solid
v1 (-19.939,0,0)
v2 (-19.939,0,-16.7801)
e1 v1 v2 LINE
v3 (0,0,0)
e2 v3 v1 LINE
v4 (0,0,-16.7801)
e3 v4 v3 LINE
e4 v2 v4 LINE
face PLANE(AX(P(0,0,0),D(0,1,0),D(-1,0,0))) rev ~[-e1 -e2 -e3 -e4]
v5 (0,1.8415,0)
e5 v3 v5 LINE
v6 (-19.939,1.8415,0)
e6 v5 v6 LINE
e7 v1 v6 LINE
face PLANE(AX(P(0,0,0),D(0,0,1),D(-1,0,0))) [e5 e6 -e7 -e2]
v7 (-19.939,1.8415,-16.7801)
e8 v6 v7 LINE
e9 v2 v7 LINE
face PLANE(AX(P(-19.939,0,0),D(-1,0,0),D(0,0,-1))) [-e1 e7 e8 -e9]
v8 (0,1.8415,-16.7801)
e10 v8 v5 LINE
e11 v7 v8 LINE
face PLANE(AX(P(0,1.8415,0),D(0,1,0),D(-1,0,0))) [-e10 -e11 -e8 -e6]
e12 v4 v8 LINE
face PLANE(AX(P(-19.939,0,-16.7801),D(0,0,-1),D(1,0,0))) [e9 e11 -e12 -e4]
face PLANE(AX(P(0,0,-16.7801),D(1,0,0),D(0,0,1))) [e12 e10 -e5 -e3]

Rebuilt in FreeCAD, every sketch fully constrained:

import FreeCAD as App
import Part
import Sketcher

V = App.Vector
Q = App.Units.Quantity

doc = App.newDocument("Part")
params = doc.addObject("Spreadsheet::Sheet", "Params")
for row, (alias, value) in enumerate([
    ("sketch1_width", "0.785 in"),
    ("pad1_length", "0.0725 in"),
], start=1):
    params.set(f"A{row}", alias)
    params.set(f"B{row}", "=" + value)
    params.setAlias(f"B{row}", alias)

body = doc.addObject("PartDesign::Body", "Body")

sketch1 = body.newObject("Sketcher::SketchObject", "Sketch")
sketch1.AttachmentSupport = (doc.getObject("XZ_Plane"), [""])
sketch1.MapMode = "FlatFace"
sketch1.addGeometry([
    Part.LineSegment(V(-20, 0, 0), V(0, 0, 0)),
    Part.LineSegment(V(0, 0, 0), V(0, -17, 0)),
    Part.LineSegment(V(0, -17, 0), V(-20, -17, 0)),
    Part.LineSegment(V(-20, -17, 0), V(-20, 0, 0)),
], False)
sketch1.addConstraint([
    Sketcher.Constraint("Coincident", 0, 2, 1, 1),
    Sketcher.Constraint("Coincident", 1, 2, 2, 1),
    Sketcher.Constraint("Coincident", 2, 2, 3, 1),
    Sketcher.Constraint("Coincident", 3, 2, 0, 1),
    Sketcher.Constraint("Horizontal", 0),
    Sketcher.Constraint("Vertical", 1),
    Sketcher.Constraint("Horizontal", 2),
    Sketcher.Constraint("Vertical", 3),
    Sketcher.Constraint("Coincident", 0, 2, -1, 1),
    Sketcher.Constraint("DistanceX", 0, 1, 0, 2, Q("0.785 in")),
    Sketcher.Constraint("DistanceY", 1, 2, 1, 1, Q("16.78 mm")),
])
sketch1.setExpression("Constraints[9]", "Params.sketch1_width")
pad1 = body.newObject("PartDesign::Pad", "Pad")
pad1.Profile = sketch1
pad1.setExpression("Length", "Params.pad1_length")
pad1.Reversed = True

doc.recompute()
